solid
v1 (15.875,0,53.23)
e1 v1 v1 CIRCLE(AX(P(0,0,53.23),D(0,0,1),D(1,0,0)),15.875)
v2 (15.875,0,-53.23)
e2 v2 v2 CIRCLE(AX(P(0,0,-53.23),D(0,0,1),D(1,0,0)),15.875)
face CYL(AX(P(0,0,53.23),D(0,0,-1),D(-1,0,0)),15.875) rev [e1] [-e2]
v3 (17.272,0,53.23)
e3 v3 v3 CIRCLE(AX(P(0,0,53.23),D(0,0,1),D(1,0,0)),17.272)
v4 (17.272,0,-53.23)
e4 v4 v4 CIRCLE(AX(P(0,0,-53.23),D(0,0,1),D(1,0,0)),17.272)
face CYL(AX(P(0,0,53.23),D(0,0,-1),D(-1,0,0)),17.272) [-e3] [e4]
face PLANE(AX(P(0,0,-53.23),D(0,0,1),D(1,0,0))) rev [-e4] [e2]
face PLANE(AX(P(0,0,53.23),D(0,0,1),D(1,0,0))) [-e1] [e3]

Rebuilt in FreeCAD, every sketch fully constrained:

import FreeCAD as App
import Part
import Sketcher
from FreeCAD import Vector
Q = App.Units.Quantity

doc = App.newDocument("Part")
body = doc.addObject("PartDesign::Body", "Body")

sketch1 = doc.addObject("Sketcher::SketchObject", "Sketch")
body.addObject(sketch1)
sketch1.AttachmentSupport = (doc.XY_Plane, [""])
sketch1.MapMode = "FlatFace"
sketch1.addGeometry([
    Part.Circle(Vector(0, 0, 0), Vector(0, 0, 1), 17),
    Part.Circle(Vector(0, 0, 0), Vector(0, 0, 1), 16),
], False)
sketch1.addConstraint([
    Sketcher.Constraint("Coincident", 0, 3, -1, 1),
    Sketcher.Constraint("Coincident", 1, 3, -1, 1),
    Sketcher.Constraint("Diameter", 0, Q("1.36 in")),
    Sketcher.Constraint("Diameter", 1, Q("1.25 in")),
])
pad1 = doc.addObject("PartDesign::Pad", "Pad")
body.addObject(pad1)
pad1.Profile = sketch1
pad1.Type = "TwoLengths"
pad1.Length = 53.23
pad1.Length2 = 53.23

doc.recompute()
